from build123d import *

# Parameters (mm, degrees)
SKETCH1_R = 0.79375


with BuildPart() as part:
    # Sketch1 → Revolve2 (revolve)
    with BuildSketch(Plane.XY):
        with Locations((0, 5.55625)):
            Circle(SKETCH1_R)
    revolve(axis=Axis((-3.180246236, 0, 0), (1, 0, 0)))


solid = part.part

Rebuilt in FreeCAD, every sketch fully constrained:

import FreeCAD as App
import Part
import Sketcher

V = App.Vector
Q = App.Units.Quantity

doc = App.newDocument("Part")
body = doc.addObject("PartDesign::Body", "Body")

# Sketch on XY plane
sketch1 = body.newObject("Sketcher::SketchObject", "Sketch")
sketch1.AttachmentSupport = (doc.getObject("XY_Plane"), [""])
sketch1.MapMode = "FlatFace"
sketch1.addGeometry(Part.Circle(V(0, 5.6, 0), V(0, 0, 1), 0.8), False)
sketch1.addConstraint(Sketcher.Constraint("PointOnObject", 0, 3, -2))
sketch1.addConstraint(Sketcher.Constraint("Diameter", 0, Q("0.0625 in")))
sketch1.addConstraint(Sketcher.Constraint("DistanceY", -1, 1, 0, 3, Q("0.21875 in")))
revolution = body.newObject("PartDesign::Revolution", "Revolution")
revolution.Profile = sketch1
revolution.ReferenceAxis = (sketch1, ["H_Axis"])
revolution.Angle = 360

doc.recompute()
